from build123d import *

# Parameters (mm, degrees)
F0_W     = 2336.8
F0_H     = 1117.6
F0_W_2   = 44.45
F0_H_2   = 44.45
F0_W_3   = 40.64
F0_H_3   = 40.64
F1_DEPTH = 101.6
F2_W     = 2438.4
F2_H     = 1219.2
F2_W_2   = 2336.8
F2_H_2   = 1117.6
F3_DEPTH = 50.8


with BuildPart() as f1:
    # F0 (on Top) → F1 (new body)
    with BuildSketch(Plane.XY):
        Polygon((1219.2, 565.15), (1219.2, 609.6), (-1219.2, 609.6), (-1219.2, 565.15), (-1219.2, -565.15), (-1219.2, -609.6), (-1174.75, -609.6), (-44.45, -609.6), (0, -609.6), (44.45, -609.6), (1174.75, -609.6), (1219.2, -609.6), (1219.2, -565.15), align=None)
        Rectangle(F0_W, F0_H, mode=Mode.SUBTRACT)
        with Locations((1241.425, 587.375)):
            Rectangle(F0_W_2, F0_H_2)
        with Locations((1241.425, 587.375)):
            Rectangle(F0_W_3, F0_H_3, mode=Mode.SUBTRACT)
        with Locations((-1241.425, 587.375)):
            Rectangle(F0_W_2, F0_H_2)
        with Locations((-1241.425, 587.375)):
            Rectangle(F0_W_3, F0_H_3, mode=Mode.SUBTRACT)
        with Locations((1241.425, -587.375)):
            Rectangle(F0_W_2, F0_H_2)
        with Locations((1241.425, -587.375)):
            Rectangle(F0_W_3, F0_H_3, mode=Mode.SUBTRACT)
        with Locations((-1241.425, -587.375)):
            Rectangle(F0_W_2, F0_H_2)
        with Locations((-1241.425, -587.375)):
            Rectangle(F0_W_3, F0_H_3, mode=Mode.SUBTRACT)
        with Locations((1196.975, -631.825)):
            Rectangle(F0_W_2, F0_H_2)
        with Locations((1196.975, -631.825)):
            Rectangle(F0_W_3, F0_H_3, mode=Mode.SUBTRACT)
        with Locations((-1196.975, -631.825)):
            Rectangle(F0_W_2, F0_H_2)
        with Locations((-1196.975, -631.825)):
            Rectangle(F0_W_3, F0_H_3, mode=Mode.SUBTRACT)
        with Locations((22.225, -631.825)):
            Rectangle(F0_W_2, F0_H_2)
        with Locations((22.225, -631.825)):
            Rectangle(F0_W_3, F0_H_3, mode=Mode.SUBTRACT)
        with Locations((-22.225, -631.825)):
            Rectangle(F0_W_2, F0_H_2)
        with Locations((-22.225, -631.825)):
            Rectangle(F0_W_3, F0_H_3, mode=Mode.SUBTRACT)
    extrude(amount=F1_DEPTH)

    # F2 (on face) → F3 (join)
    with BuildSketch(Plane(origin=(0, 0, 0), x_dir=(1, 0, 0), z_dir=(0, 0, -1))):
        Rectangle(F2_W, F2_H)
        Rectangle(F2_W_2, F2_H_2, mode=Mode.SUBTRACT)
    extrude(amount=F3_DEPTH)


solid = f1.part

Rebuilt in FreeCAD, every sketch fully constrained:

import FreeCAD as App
import Part
import Sketcher
Q = App.Units.Quantity


def add_polygon(sketch, points):
    """Adds a closed chain of lines whose ends are joined by coincident constraints."""
    first, n = sketch.GeometryCount, len(points)
    for a, b in zip(points, points[1:] + points[:1]):
        sketch.addGeometry(Part.LineSegment(App.Vector(*a, 0), App.Vector(*b, 0)), False)
    for i in range(n):
        sketch.addConstraint(Sketcher.Constraint("Coincident", first + i, 2, first + (i + 1) % n, 1))

doc = App.newDocument("Part")
body = doc.addObject("PartDesign::Body", "Body")

# Sketch on XY plane
sketch1 = body.newObject("Sketcher::SketchObject", "Sketch")
sketch1.AttachmentSupport = (doc.getObject("XY_Plane"), [""])
sketch1.MapMode = "FlatFace"
add_polygon(sketch1, [(-1219.2, 565.15), (-1219.2, -565.15), (-1263.65, -565.15), (-1263.65, -609.6), (-1219.2, -609.6), (-1219.2, -654.05), (-1174.75, -654.05), (-1174.75, -609.6), (-44.45, -609.6), (-44.45, -654.05), (44.45, -654.05), (44.45, -609.6), (1174.75, -609.6), (1174.75, -654.05), (1219.2, -654.05), (1219.2, -609.6), (1263.65, -609.6), (1263.65, -565.15), (1219.2, -565.15), (1219.2, 565.15), (1263.65, 565.15), (1263.65, 609.6), (-1263.65, 609.6), (-1263.65, 565.15)])  # lines 0-23
add_polygon(sketch1, [(-1176.655, -652.145), (-1217.295, -652.145), (-1217.295, -611.505), (-1176.655, -611.505)])  # lines 24-27
add_polygon(sketch1, [(-1221.105, -607.695), (-1261.745, -607.695), (-1261.745, -567.055), (-1221.105, -567.055)])  # lines 28-31
add_polygon(sketch1, [(-1.905, -652.145), (-42.545, -652.145), (-42.545, -611.505), (-1.905, -611.505)])  # lines 32-35
add_polygon(sketch1, [(42.545, -652.145), (1.905, -652.145), (1.905, -611.505), (42.545, -611.505)])  # lines 36-39
add_polygon(sketch1, [(1217.295, -652.145), (1176.655, -652.145), (1176.655, -611.505), (1217.295, -611.505)])  # lines 40-43
add_polygon(sketch1, [(1261.745, -607.695), (1221.105, -607.695), (1221.105, -567.055), (1261.745, -567.055)])  # lines 44-47
add_polygon(sketch1, [(-1221.105, 567.055), (-1261.745, 567.055), (-1261.745, 607.695), (-1221.105, 607.695)])  # lines 48-51
add_polygon(sketch1, [(1168.4, -558.8), (-1168.4, -558.8), (-1168.4, 558.8), (1168.4, 558.8)])  # lines 52-55
add_polygon(sketch1, [(1261.745, 567.055), (1221.105, 567.055), (1221.105, 607.695), (1261.745, 607.695)])  # lines 56-59
sketch1.addConstraint([
    Sketcher.Constraint("Vertical", 0),
    Sketcher.Constraint("Horizontal", 1),
    Sketcher.Constraint("Vertical", 2),
    Sketcher.Constraint("Horizontal", 3),
    Sketcher.Constraint("Vertical", 4),
    Sketcher.Constraint("Horizontal", 5),
    Sketcher.Constraint("Vertical", 6),
    Sketcher.Constraint("Horizontal", 7),
    Sketcher.Constraint("Vertical", 8),
    Sketcher.Constraint("Horizontal", 9),
    Sketcher.Constraint("Vertical", 10),
    Sketcher.Constraint("Horizontal", 11),
    Sketcher.Constraint("Vertical", 12),
    Sketcher.Constraint("Horizontal", 13),
    Sketcher.Constraint("Vertical", 14),
    Sketcher.Constraint("Horizontal", 15),
    Sketcher.Constraint("Vertical", 16),
    Sketcher.Constraint("Horizontal", 17),
    Sketcher.Constraint("Vertical", 18),
    Sketcher.Constraint("Horizontal", 19),
    Sketcher.Constraint("Vertical", 20),
    Sketcher.Constraint("Horizontal", 21),
    Sketcher.Constraint("Vertical", 22),
    Sketcher.Constraint("Horizontal", 23),
    Sketcher.Constraint("Horizontal", 24),
    Sketcher.Constraint("Vertical", 25),
    Sketcher.Constraint("Horizontal", 26),
    Sketcher.Constraint("Vertical", 27),
    Sketcher.Constraint("Horizontal", 28),
    Sketcher.Constraint("Vertical", 29),
    Sketcher.Constraint("Horizontal", 30),
    Sketcher.Constraint("Vertical", 31),
    Sketcher.Constraint("Horizontal", 32),
    Sketcher.Constraint("Vertical", 33),
    Sketcher.Constraint("Horizontal", 34),
    Sketcher.Constraint("Vertical", 35),
    Sketcher.Constraint("Horizontal", 36),
    Sketcher.Constraint("Vertical", 37),
    Sketcher.Constraint("Horizontal", 38),
    Sketcher.Constraint("Vertical", 39),
    Sketcher.Constraint("Horizontal", 40),
    Sketcher.Constraint("Vertical", 41),
    Sketcher.Constraint("Horizontal", 42),
    Sketcher.Constraint("Vertical", 43),
    Sketcher.Constraint("Horizontal", 44),
    Sketcher.Constraint("Vertical", 45),
    Sketcher.Constraint("Horizontal", 46),
    Sketcher.Constraint("Vertical", 47),
    Sketcher.Constraint("Horizontal", 48),
    Sketcher.Constraint("Vertical", 49),
    Sketcher.Constraint("Horizontal", 50),
    Sketcher.Constraint("Vertical", 51),
    Sketcher.Constraint("Horizontal", 52),
    Sketcher.Constraint("Vertical", 53),
    Sketcher.Constraint("Horizontal", 54),
    Sketcher.Constraint("Vertical", 55),
    Sketcher.Constraint("Horizontal", 56),
    Sketcher.Constraint("Vertical", 57),
    Sketcher.Constraint("Horizontal", 58),
    Sketcher.Constraint("Vertical", 59),
    Sketcher.Constraint("Symmetric", 0, 2, 18, 2, -1, 1),
    Sketcher.Constraint("Symmetric", 2, 2, 20, 2, -1, 1),
    Sketcher.Constraint("Symmetric", 15, 2, 21, 2, -1, 1),
    Sketcher.Constraint("Symmetric", 46, 2, 48, 2, -1, 1),
    Sketcher.Constraint("Symmetric", 44, 2, 50, 2, -1, 1),
    Sketcher.Constraint("Symmetric", 52, 2, 54, 2, -1, 1),
    Sketcher.Constraint("Symmetric", 30, 2, 56, 2, -1, 1),
    Sketcher.Constraint("Symmetric", 28, 2, 58, 2, -1, 1),
    Sketcher.Constraint("Symmetric", 7, 2, 10, 2, -2),
    Sketcher.Constraint("Symmetric", 5, 2, 12, 2, -2),
    Sketcher.Constraint("Symmetric", 1, 2, 16, 2, -2),
    Sketcher.Constraint("Symmetric", 35, 2, 36, 2, -2),
    Sketcher.Constraint("Symmetric", 33, 2, 38, 2, -2),
    Sketcher.Constraint("Symmetric", 27, 2, 40, 2, -2),
    Sketcher.Constraint("Symmetric", 25, 2, 42, 2, -2),
    Sketcher.Constraint("Symmetric", 31, 2, 44, 2, -2),
    Sketcher.Constraint("Symmetric", 29, 2, 46, 2, -2),
    Sketcher.Constraint("Horizontal", 3, 2, 6, 2),
    Sketcher.Constraint("Horizontal", 5, 2, 8, 2),
    Sketcher.Constraint("Horizontal", 19, 2, 22, 2),
    Sketcher.Constraint("Horizontal", 27, 2, 32, 2),
    Sketcher.Constraint("Horizontal", 26, 2, 33, 2),
    Sketcher.Constraint("Vertical", 0, 2, 3, 2),
    Sketcher.Constraint("Vertical", 14, 2, 17, 2),
    Sketcher.Constraint("Equal", 3, 5),
    Sketcher.Constraint("Equal", 26, 28),
    Sketcher.Constraint("Equal", 30, 32),
    Sketcher.Constraint("Equal", 11, 0),
    Sketcher.Constraint("Equal", 23, 2),
    Sketcher.Constraint("Equal", 2, 4),
    Sketcher.Constraint("Equal", 58, 25),
    Sketcher.Constraint("Equal", 27, 29),
    Sketcher.Constraint("DistanceX", 52, 2, 52, 1, Q("92 in")),
    Sketcher.Constraint("DistanceY", 53, 1, 53, 2, Q("44 in")),
    Sketcher.Constraint("DistanceX", 7, 1, 7, 2, Q("44.5 in")),
    Sketcher.Constraint("DistanceX", 9, 1, 9, 2, Q("3.5 in")),
    Sketcher.Constraint("DistanceX", 21, 2, 21, 1, Q("99.5 in")),
    Sketcher.Constraint("DistanceX", 24, 2, 24, 1, Q("1.6 in")),
    Sketcher.Constraint("DistanceX", 28, 2, 25, 2, Q("1.75 in")),
    Sketcher.Constraint("DistanceY", 25, 2, 28, 2, Q("0.15 in")),
    Sketcher.Constraint("DistanceX", 35, 2, 36, 2, Q("0.15 in")),
    Sketcher.Constraint("DistanceX", 24, 2, -1, 1, Q("47.925 in")),
    Sketcher.Constraint("DistanceY", 24, 2, -1, 1, Q("25.675 in")),
])
pad1 = body.newObject("PartDesign::Pad", "Pad")
pad1.Profile = sketch1
pad1.Length = Q("4 in")

# Sketch on XY plane
sketch2 = body.newObject("Sketcher::SketchObject", "Sketch001")
sketch2.AttachmentSupport = (doc.getObject("XY_Plane"), [""])
sketch2.MapMode = "FlatFace"
add_polygon(sketch2, [(-1219.2, -609.6), (-1219.2, 609.6), (1219.2, 609.6), (1219.2, -609.6)])  # lines 0-3
add_polygon(sketch2, [(1168.4, 558.8), (-1168.4, 558.8), (-1168.4, -558.8), (1168.4, -558.8)])  # lines 4-7
sketch2.addConstraint([
    Sketcher.Constraint("Vertical", 0),
    Sketcher.Constraint("Horizontal", 1),
    Sketcher.Constraint("Vertical", 2),
    Sketcher.Constraint("Horizontal", 3),
    Sketcher.Constraint("Horizontal", 4),
    Sketcher.Constraint("Vertical", 5),
    Sketcher.Constraint("Horizontal", 6),
    Sketcher.Constraint("Vertical", 7),
    Sketcher.Constraint("Symmetric", 0, 2, 2, 2, -1, 1),
    Sketcher.Constraint("Symmetric", 4, 2, 6, 2, -1, 1),
    Sketcher.Constraint("DistanceX", 1, 1, 1, 2, Q("96 in")),
    Sketcher.Constraint("DistanceX", 4, 2, 4, 1, Q("92 in")),
    Sketcher.Constraint("DistanceY", 0, 1, 0, 2, Q("48 in")),
    Sketcher.Constraint("DistanceY", 5, 2, 5, 1, Q("44 in")),
])
pad2 = body.newObject("PartDesign::Pad", "Pad001")
pad2.Profile = sketch2
pad2.Length = Q("2 in")
pad2.Reversed = True

doc.recompute()
